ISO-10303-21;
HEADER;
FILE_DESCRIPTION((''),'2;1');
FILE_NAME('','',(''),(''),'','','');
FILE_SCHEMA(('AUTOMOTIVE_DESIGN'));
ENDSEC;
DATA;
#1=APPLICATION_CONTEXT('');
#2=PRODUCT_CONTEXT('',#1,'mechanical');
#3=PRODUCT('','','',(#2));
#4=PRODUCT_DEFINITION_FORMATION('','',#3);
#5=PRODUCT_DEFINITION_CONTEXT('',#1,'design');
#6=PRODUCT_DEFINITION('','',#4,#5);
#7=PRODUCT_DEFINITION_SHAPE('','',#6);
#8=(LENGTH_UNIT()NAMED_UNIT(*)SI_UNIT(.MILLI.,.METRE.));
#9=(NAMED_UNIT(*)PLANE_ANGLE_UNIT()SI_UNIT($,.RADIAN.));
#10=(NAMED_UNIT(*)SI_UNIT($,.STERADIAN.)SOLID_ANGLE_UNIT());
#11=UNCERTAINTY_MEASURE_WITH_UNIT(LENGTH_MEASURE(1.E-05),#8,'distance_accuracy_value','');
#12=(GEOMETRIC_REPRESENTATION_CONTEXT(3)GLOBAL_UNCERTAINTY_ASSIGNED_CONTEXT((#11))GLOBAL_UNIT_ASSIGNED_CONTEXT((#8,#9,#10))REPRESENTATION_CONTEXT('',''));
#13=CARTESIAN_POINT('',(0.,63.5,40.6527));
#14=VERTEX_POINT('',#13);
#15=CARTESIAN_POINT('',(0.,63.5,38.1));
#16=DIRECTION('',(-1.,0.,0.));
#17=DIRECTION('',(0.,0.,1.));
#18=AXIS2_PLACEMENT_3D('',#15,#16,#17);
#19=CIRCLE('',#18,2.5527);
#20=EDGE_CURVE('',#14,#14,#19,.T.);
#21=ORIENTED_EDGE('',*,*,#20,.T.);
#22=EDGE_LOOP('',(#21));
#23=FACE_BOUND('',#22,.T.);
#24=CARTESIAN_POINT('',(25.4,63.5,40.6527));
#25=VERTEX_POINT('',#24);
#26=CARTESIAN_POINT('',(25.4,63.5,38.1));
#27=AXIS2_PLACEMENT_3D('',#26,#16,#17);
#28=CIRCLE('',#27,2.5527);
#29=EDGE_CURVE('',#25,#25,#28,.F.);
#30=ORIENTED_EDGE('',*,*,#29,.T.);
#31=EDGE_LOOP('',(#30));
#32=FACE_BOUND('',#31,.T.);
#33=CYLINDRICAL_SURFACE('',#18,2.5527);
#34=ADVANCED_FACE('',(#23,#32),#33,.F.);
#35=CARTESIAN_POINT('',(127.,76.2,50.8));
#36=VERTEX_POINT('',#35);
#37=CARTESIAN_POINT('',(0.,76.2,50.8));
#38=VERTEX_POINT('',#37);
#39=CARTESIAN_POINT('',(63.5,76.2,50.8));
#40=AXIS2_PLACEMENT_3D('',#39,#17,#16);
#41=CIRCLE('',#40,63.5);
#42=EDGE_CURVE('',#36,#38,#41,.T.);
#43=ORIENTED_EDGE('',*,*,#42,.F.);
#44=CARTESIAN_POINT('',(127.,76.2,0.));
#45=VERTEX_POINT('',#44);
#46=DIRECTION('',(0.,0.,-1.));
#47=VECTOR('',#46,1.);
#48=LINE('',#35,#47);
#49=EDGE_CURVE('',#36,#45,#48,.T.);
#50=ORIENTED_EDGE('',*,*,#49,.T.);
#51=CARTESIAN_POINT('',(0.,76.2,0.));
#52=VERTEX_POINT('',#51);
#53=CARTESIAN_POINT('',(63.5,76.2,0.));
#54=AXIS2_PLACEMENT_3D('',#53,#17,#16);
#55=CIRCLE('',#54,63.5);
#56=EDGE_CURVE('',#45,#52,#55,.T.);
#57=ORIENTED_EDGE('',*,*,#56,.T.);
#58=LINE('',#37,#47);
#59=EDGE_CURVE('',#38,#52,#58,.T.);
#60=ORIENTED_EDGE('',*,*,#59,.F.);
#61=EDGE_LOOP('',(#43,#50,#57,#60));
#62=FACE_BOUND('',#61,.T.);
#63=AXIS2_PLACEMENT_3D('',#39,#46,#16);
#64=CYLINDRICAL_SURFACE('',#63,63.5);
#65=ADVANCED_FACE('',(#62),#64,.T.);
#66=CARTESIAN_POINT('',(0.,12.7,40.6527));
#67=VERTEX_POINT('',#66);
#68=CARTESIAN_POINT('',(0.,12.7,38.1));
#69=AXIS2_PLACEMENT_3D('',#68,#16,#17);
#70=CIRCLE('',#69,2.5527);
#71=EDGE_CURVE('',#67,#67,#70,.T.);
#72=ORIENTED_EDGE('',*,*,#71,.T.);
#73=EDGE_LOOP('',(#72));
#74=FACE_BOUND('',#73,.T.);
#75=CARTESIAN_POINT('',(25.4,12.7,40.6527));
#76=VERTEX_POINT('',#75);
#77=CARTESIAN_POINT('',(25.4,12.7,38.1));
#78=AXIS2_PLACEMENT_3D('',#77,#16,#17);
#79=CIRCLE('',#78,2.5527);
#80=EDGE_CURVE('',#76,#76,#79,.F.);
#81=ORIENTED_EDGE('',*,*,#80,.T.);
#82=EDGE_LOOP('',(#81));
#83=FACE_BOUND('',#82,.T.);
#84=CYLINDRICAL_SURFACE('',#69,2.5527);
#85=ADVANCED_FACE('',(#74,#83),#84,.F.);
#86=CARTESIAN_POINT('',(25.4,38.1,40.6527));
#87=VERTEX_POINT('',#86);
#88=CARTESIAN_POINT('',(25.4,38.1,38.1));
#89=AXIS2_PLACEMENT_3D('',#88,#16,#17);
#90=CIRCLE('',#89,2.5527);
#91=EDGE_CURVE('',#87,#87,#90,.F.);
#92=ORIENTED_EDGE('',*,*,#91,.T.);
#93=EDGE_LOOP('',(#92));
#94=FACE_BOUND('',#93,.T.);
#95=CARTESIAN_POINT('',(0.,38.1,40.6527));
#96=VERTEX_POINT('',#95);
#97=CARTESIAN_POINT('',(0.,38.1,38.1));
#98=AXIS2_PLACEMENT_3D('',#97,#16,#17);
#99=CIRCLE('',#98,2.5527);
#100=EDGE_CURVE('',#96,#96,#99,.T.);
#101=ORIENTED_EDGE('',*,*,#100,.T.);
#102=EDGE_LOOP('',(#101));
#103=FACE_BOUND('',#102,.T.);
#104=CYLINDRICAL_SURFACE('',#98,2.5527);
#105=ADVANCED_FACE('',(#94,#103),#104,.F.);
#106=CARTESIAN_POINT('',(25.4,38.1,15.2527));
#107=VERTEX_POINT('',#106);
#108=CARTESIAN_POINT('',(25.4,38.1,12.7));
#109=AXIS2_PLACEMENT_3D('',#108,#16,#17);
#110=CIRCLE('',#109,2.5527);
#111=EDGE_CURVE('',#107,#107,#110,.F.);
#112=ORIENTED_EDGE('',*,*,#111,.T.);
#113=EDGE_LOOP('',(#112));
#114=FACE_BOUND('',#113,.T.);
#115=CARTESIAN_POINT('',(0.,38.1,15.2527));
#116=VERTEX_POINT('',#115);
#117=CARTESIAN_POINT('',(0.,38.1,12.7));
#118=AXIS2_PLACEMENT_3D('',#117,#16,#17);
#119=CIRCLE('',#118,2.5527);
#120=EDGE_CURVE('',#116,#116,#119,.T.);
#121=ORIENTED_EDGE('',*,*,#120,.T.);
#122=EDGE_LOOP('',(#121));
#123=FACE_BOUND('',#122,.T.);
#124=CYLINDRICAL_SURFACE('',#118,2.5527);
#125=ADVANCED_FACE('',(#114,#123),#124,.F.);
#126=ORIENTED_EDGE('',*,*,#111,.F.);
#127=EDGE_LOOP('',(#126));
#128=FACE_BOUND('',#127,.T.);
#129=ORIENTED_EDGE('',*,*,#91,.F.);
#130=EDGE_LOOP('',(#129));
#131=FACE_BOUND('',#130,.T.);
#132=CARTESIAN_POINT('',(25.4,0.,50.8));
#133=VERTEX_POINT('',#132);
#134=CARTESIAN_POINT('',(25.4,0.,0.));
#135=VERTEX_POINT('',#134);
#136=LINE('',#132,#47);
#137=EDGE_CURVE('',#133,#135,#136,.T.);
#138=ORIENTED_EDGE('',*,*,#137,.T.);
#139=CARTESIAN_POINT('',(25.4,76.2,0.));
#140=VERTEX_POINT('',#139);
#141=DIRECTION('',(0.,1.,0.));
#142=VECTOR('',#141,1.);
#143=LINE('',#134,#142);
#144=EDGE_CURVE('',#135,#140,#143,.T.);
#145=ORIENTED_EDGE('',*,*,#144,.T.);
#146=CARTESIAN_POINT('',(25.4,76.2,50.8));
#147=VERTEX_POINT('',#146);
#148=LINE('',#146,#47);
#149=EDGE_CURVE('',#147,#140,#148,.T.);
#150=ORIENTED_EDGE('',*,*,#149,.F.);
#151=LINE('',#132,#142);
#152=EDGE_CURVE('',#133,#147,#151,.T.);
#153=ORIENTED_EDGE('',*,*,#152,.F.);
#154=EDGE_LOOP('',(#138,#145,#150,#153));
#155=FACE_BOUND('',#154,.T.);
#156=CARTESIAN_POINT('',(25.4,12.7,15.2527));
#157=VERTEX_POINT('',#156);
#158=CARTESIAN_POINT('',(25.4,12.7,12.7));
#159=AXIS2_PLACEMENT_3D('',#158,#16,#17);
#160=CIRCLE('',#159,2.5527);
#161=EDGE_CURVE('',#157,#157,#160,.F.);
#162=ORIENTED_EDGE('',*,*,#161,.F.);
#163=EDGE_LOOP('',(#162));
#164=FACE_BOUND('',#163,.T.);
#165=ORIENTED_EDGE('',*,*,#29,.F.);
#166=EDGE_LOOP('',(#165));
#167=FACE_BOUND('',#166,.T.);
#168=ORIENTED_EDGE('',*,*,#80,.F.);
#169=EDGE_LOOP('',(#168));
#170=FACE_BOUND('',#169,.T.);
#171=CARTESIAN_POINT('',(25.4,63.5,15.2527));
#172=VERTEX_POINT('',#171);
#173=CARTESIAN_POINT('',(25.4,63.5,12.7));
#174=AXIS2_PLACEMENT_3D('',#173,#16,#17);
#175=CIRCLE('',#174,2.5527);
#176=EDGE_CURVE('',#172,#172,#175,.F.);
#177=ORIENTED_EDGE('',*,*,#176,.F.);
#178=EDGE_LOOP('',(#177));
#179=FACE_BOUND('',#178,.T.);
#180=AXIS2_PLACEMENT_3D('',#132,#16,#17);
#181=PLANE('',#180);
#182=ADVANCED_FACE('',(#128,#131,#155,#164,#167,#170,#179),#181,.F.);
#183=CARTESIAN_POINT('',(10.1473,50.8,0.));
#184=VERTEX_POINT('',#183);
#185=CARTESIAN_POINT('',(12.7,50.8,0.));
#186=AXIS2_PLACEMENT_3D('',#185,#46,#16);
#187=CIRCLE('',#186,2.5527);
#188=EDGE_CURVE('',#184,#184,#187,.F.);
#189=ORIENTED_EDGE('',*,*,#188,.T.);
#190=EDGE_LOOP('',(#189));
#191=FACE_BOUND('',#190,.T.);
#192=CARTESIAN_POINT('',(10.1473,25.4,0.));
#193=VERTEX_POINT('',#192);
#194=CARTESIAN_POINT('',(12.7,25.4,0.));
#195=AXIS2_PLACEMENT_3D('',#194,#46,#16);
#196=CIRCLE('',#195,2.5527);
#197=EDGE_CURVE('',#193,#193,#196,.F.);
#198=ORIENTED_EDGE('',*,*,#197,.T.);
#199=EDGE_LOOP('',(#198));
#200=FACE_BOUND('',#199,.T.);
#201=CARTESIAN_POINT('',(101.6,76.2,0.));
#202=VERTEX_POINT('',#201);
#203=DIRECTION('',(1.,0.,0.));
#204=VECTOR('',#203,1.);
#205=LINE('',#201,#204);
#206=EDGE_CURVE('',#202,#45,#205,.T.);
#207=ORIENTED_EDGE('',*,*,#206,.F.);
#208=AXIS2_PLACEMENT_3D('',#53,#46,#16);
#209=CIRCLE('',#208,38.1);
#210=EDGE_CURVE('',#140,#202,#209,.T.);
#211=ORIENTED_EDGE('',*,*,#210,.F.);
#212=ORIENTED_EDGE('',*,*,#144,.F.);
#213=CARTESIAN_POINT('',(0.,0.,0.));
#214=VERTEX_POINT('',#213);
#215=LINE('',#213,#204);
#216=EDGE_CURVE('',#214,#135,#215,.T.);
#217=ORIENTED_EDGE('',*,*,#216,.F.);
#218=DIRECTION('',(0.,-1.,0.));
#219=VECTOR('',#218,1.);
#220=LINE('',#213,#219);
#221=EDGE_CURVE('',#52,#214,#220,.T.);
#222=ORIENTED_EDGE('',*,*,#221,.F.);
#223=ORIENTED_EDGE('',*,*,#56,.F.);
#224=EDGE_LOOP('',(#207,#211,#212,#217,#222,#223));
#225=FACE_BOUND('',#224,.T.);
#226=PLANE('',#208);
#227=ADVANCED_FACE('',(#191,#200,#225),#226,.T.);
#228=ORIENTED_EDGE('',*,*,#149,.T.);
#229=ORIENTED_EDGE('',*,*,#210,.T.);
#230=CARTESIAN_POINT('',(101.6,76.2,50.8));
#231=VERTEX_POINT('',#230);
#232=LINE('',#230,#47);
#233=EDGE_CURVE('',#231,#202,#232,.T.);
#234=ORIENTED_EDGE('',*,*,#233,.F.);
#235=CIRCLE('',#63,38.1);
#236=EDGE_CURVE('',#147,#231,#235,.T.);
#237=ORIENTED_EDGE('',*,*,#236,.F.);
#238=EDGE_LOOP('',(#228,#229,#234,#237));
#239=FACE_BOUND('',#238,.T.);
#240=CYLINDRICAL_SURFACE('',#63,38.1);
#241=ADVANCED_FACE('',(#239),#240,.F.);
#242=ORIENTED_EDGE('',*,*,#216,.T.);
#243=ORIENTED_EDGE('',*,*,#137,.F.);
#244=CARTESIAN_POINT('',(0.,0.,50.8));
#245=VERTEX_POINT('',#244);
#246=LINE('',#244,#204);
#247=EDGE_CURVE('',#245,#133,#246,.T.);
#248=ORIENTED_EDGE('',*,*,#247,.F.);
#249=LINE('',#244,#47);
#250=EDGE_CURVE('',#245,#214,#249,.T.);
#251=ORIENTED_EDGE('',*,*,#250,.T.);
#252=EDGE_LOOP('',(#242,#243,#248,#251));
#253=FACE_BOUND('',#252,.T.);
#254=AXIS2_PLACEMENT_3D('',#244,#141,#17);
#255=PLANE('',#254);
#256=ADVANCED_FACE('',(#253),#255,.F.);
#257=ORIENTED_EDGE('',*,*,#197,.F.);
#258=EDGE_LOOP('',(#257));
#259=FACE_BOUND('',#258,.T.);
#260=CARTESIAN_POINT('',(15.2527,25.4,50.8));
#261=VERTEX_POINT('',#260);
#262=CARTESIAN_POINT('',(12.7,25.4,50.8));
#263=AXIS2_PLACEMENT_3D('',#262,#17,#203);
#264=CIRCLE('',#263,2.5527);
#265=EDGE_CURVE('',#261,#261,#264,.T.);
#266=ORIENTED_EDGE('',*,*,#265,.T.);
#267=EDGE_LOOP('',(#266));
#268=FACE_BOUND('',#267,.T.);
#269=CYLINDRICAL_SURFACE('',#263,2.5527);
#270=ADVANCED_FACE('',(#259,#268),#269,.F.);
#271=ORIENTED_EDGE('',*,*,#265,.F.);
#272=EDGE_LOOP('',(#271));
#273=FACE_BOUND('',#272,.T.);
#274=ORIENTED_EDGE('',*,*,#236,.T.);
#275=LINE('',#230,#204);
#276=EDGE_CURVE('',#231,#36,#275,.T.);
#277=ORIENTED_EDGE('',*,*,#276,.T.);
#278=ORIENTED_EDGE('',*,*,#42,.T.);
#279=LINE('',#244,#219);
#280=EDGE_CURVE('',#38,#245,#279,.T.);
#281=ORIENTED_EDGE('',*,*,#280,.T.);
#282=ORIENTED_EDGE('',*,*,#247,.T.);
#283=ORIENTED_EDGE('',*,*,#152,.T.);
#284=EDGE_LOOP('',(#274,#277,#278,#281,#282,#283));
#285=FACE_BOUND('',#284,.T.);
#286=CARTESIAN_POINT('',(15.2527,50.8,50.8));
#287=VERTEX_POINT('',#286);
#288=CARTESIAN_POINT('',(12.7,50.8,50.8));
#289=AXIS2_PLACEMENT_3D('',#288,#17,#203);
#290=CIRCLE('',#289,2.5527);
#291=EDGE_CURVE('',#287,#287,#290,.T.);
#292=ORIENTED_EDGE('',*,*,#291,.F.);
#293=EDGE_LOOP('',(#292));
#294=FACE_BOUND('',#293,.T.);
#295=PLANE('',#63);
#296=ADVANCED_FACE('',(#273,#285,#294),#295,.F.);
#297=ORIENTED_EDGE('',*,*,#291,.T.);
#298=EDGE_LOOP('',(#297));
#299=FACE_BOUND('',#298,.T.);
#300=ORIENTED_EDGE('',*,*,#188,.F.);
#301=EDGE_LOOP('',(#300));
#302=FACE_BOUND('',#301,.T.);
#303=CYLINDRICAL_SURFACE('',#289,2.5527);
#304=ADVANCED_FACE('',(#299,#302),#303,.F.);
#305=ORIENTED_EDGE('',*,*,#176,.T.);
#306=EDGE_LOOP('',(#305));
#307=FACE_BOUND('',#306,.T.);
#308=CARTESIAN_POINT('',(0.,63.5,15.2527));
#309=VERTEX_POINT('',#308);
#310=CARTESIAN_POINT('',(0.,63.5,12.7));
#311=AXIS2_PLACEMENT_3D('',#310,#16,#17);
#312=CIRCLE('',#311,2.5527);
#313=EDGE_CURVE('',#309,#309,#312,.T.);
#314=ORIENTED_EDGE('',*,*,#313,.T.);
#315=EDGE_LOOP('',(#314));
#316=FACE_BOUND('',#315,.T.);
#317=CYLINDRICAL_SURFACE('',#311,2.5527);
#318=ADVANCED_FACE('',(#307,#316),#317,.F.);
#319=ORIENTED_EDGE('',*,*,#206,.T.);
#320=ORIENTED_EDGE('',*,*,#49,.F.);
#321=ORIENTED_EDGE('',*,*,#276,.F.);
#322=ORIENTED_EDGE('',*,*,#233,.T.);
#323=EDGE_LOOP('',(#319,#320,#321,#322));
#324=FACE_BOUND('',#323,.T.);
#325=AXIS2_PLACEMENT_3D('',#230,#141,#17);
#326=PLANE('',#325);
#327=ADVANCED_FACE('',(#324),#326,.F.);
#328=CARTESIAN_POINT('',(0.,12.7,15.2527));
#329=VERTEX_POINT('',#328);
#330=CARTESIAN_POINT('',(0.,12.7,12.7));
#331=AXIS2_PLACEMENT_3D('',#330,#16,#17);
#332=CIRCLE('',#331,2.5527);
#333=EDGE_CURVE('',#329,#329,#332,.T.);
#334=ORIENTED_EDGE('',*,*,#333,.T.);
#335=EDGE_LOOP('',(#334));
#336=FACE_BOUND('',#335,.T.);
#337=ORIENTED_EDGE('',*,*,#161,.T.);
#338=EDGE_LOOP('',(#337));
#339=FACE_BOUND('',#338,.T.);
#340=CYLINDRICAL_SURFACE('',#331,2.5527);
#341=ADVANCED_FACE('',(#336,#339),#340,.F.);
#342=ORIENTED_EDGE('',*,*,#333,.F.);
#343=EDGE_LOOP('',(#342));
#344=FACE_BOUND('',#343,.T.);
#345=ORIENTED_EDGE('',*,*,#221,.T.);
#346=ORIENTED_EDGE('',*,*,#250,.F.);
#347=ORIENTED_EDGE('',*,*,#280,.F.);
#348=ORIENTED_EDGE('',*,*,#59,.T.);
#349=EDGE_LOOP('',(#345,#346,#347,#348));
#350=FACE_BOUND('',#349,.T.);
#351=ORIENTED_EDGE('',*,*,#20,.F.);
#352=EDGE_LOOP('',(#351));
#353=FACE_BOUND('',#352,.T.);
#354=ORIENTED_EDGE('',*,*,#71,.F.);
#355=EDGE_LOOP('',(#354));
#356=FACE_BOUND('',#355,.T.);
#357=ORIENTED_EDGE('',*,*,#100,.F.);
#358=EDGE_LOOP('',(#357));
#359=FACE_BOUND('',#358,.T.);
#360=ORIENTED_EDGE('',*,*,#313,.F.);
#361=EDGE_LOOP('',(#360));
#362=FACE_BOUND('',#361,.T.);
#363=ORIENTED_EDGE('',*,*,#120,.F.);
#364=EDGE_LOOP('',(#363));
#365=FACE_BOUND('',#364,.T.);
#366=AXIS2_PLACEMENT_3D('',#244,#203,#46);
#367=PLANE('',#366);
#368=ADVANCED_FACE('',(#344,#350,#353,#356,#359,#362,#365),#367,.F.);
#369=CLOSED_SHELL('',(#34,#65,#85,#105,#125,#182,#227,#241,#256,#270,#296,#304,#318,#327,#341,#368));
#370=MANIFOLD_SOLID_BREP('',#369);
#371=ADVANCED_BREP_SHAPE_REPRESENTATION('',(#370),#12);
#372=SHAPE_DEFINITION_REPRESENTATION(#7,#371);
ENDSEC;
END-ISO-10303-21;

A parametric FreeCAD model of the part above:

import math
import FreeCAD as App
import Part
import Sketcher

V = App.Vector
Q = App.Units.Quantity

doc = App.newDocument("Part")
body = doc.addObject("PartDesign::Body", "Body")

# Sketch on XY plane
sketch1 = doc.addObject("Sketcher::SketchObject", "Sketch")
body.addObject(sketch1)
sketch1.AttachmentSupport = (doc.XY_Plane, [""])
sketch1.MapMode = "FlatFace"
sketch1.addGeometry([
    Part.LineSegment(V(102, 76, 0), V(127, 76, 0)),  # 0
    Part.ArcOfCircle(Part.Circle(V(64, 76, 0), V(0, 0, 1), 64), math.radians(0), math.radians(180)),  # 1
    Part.LineSegment(V(0, 76, 0), V(0, 0, 0)),  # 2
    Part.LineSegment(V(0, 0, 0), V(25, 0, 0)),  # 3
    Part.LineSegment(V(25, 0, 0), V(25, 76, 0)),  # 4
    Part.ArcOfCircle(Part.Circle(V(64, 76, 0), V(0, 0, 1), 38), math.radians(0), math.radians(180)),  # 5
], False)
sketch1.addConstraint([
    Sketcher.Constraint("Coincident", 0, 2, 1, 1),
    Sketcher.Constraint("Tangent", 1, 2, 2, 1),
    Sketcher.Constraint("Coincident", 2, 2, 3, 1),
    Sketcher.Constraint("Coincident", 3, 2, 4, 1),
    Sketcher.Constraint("Tangent", 4, 2, 5, 2),
    Sketcher.Constraint("Coincident", 5, 1, 0, 1),
    Sketcher.Constraint("Horizontal", 0),
    Sketcher.Constraint("Vertical", 2),
    Sketcher.Constraint("Horizontal", 3),
    Sketcher.Constraint("Vertical", 4),
    Sketcher.Constraint("Coincident", 2, 2, -1, 1),
    Sketcher.Constraint("Coincident", 5, 3, 1, 3),
    Sketcher.Constraint("Horizontal", 5, 3, 0, 2),
    Sketcher.Constraint("Radius", 1, Q("2.5 in")),
    Sketcher.Constraint("Radius", 5, Q("1.5 in")),
    Sketcher.Constraint("DistanceY", 2, 2, 2, 1, Q("3 in")),
])
pad1 = doc.addObject("PartDesign::Pad", "Pad")
body.addObject(pad1)
pad1.Profile = sketch1
pad1.Length = Q("2 in")

# Sketch on XY plane
sketch2 = doc.addObject("Sketcher::SketchObject", "Sketch001")
body.addObject(sketch2)
sketch2.AttachmentSupport = (doc.XY_Plane, [""])
sketch2.MapMode = "FlatFace"
sketch2.AttachmentOffset = App.Placement(V(0, 0, 2 * 25.4), App.Rotation())
sketch2.addGeometry([
    Part.Circle(V(12.7, 50.8, 0), V(0, 0, 1), 2.6),
    Part.Circle(V(12.7, 25.4, 0), V(0, 0, 1), 2.6),
], False)
sketch2.addConstraint([
    Sketcher.Constraint("Equal", 0, 1),
    Sketcher.Constraint("Vertical", 0, 3, 1, 3),
    Sketcher.Constraint("Diameter", 0, Q("0.201 in")),
    Sketcher.Constraint("DistanceY", -1, 1, 0, 3, Q("2 in")),
    Sketcher.Constraint("DistanceY", -1, 1, 1, 3, Q("1 in")),
    Sketcher.Constraint("DistanceX", -1, 1, 0, 3, Q("0.5 in")),
])
doc.recompute()
hole = doc.addObject("PartDesign::Hole", "Hole")
body.addObject(hole)
hole.Profile = sketch2
hole.ThreadType = "None"
hole.Diameter = Q("0.201 in")
hole.DepthType = "ThroughAll"

# Sketch on YZ plane
sketch3 = doc.addObject("Sketcher::SketchObject", "Sketch002")
body.addObject(sketch3)
sketch3.AttachmentSupport = (doc.YZ_Plane, [""])
sketch3.MapMode = "FlatFace"
sketch3.addGeometry([
    Part.Circle(V(38.1, 12.7, 0), V(0, 0, 1), 2.6),  # 0
    Part.Circle(V(12.7, 12.7, 0), V(0, 0, 1), 2.6),  # 1
    Part.Circle(V(63.5, 12.7, 0), V(0, 0, 1), 2.6),  # 2
    Part.Circle(V(63.5, 38.1, 0), V(0, 0, 1), 2.6),  # 3
    Part.Circle(V(12.7, 38.1, 0), V(0, 0, 1), 2.6),  # 4
    Part.Circle(V(38.1, 38.1, 0), V(0, 0, 1), 2.6),  # 5
], False)
sketch3.addConstraint([
    Sketcher.Constraint("Equal", 0, 1),
    Sketcher.Constraint("Equal", 1, 2),
    Sketcher.Constraint("Equal", 2, 3),
    Sketcher.Constraint("Equal", 3, 4),
    Sketcher.Constraint("Equal", 4, 5),
    Sketcher.Constraint("Horizontal", 0, 3, 1, 3),
    Sketcher.Constraint("Horizontal", 1, 3, 2, 3),
    Sketcher.Constraint("Horizontal", 3, 3, 4, 3),
    Sketcher.Constraint("Horizontal", 4, 3, 5, 3),
    Sketcher.Constraint("Vertical", 2, 3, 3, 3),
    Sketcher.Constraint("Vertical", 1, 3, 4, 3),
    Sketcher.Constraint("Vertical", 0, 3, 5, 3),
    Sketcher.Constraint("Diameter", 0, Q("0.201 in")),
    Sketcher.Constraint("DistanceX", 1, 3, 0, 3, Q("1 in")),
    Sketcher.Constraint("DistanceX", 0, 3, 2, 3, Q("1 in")),
    Sketcher.Constraint("DistanceY", 2, 3, 3, 3, Q("1 in")),
    Sketcher.Constraint("DistanceX", -1, 1, 0, 3, Q("1.5 in")),
    Sketcher.Constraint("DistanceY", -1, 1, 0, 3, Q("0.5 in")),
])
doc.recompute()
hole2 = doc.addObject("PartDesign::Hole", "Hole001")
body.addObject(hole2)
hole2.Profile = sketch3
hole2.ThreadType = "None"
hole2.Diameter = Q("0.201 in")
hole2.DepthType = "ThroughAll"
hole2.Reversed = True

doc.recompute()
